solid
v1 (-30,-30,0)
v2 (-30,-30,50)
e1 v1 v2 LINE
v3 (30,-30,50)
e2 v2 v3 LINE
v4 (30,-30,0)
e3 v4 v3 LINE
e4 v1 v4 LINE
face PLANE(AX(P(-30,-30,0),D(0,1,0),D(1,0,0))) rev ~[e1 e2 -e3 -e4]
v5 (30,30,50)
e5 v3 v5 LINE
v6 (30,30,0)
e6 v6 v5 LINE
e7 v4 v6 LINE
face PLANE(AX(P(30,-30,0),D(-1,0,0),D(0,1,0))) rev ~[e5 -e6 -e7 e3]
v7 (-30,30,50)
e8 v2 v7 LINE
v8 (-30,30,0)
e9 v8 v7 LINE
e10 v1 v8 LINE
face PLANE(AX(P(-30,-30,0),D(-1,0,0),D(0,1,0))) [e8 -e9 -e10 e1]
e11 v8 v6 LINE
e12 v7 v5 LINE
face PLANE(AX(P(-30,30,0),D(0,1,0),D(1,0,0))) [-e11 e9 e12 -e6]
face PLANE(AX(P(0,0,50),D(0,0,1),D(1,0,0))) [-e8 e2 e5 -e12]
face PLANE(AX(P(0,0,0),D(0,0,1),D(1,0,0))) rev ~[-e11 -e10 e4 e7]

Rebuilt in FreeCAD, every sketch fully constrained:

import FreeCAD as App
import Part
import Sketcher
Q = App.Units.Quantity

doc = App.newDocument("Part")
body = doc.addObject("PartDesign::Body", "Body")

# Sketch on XY plane
sketch1 = doc.addObject("Sketcher::SketchObject", "Sketch")
body.addObject(sketch1)
sketch1.AttachmentSupport = (doc.XY_Plane, [""])
sketch1.MapMode = "FlatFace"
sketch1.addGeometry(Part.LineSegment(App.Vector(-30, 30, 0), App.Vector(-30, -30, 0)), False)
sketch1.addGeometry(Part.LineSegment(App.Vector(-30, -30, 0), App.Vector(30, -30, 0)), False)
sketch1.addGeometry(Part.LineSegment(App.Vector(30, -30, 0), App.Vector(30, 30, 0)), False)
sketch1.addGeometry(Part.LineSegment(App.Vector(30, 30, 0), App.Vector(-30, 30, 0)), False)
sketch1.addConstraint(Sketcher.Constraint("Coincident", 0, 2, 1, 1))
sketch1.addConstraint(Sketcher.Constraint("Coincident", 1, 2, 2, 1))
sketch1.addConstraint(Sketcher.Constraint("Coincident", 2, 2, 3, 1))
sketch1.addConstraint(Sketcher.Constraint("Coincident", 3, 2, 0, 1))
sketch1.addConstraint(Sketcher.Constraint("Vertical", 0))
sketch1.addConstraint(Sketcher.Constraint("Horizontal", 1))
sketch1.addConstraint(Sketcher.Constraint("Vertical", 2))
sketch1.addConstraint(Sketcher.Constraint("Horizontal", 3))
sketch1.addConstraint(Sketcher.Constraint("Symmetric", 0, 2, 2, 2, -1, 1))
sketch1.addConstraint(Sketcher.Constraint("Equal", 3, 0))
sketch1.addConstraint(Sketcher.Constraint("DistanceX", 1, 1, 1, 2, Q("60 mm")))
pad1 = doc.addObject("PartDesign::Pad", "Pad")
body.addObject(pad1)
pad1.Profile = sketch1
pad1.Length = 50

doc.recompute()
